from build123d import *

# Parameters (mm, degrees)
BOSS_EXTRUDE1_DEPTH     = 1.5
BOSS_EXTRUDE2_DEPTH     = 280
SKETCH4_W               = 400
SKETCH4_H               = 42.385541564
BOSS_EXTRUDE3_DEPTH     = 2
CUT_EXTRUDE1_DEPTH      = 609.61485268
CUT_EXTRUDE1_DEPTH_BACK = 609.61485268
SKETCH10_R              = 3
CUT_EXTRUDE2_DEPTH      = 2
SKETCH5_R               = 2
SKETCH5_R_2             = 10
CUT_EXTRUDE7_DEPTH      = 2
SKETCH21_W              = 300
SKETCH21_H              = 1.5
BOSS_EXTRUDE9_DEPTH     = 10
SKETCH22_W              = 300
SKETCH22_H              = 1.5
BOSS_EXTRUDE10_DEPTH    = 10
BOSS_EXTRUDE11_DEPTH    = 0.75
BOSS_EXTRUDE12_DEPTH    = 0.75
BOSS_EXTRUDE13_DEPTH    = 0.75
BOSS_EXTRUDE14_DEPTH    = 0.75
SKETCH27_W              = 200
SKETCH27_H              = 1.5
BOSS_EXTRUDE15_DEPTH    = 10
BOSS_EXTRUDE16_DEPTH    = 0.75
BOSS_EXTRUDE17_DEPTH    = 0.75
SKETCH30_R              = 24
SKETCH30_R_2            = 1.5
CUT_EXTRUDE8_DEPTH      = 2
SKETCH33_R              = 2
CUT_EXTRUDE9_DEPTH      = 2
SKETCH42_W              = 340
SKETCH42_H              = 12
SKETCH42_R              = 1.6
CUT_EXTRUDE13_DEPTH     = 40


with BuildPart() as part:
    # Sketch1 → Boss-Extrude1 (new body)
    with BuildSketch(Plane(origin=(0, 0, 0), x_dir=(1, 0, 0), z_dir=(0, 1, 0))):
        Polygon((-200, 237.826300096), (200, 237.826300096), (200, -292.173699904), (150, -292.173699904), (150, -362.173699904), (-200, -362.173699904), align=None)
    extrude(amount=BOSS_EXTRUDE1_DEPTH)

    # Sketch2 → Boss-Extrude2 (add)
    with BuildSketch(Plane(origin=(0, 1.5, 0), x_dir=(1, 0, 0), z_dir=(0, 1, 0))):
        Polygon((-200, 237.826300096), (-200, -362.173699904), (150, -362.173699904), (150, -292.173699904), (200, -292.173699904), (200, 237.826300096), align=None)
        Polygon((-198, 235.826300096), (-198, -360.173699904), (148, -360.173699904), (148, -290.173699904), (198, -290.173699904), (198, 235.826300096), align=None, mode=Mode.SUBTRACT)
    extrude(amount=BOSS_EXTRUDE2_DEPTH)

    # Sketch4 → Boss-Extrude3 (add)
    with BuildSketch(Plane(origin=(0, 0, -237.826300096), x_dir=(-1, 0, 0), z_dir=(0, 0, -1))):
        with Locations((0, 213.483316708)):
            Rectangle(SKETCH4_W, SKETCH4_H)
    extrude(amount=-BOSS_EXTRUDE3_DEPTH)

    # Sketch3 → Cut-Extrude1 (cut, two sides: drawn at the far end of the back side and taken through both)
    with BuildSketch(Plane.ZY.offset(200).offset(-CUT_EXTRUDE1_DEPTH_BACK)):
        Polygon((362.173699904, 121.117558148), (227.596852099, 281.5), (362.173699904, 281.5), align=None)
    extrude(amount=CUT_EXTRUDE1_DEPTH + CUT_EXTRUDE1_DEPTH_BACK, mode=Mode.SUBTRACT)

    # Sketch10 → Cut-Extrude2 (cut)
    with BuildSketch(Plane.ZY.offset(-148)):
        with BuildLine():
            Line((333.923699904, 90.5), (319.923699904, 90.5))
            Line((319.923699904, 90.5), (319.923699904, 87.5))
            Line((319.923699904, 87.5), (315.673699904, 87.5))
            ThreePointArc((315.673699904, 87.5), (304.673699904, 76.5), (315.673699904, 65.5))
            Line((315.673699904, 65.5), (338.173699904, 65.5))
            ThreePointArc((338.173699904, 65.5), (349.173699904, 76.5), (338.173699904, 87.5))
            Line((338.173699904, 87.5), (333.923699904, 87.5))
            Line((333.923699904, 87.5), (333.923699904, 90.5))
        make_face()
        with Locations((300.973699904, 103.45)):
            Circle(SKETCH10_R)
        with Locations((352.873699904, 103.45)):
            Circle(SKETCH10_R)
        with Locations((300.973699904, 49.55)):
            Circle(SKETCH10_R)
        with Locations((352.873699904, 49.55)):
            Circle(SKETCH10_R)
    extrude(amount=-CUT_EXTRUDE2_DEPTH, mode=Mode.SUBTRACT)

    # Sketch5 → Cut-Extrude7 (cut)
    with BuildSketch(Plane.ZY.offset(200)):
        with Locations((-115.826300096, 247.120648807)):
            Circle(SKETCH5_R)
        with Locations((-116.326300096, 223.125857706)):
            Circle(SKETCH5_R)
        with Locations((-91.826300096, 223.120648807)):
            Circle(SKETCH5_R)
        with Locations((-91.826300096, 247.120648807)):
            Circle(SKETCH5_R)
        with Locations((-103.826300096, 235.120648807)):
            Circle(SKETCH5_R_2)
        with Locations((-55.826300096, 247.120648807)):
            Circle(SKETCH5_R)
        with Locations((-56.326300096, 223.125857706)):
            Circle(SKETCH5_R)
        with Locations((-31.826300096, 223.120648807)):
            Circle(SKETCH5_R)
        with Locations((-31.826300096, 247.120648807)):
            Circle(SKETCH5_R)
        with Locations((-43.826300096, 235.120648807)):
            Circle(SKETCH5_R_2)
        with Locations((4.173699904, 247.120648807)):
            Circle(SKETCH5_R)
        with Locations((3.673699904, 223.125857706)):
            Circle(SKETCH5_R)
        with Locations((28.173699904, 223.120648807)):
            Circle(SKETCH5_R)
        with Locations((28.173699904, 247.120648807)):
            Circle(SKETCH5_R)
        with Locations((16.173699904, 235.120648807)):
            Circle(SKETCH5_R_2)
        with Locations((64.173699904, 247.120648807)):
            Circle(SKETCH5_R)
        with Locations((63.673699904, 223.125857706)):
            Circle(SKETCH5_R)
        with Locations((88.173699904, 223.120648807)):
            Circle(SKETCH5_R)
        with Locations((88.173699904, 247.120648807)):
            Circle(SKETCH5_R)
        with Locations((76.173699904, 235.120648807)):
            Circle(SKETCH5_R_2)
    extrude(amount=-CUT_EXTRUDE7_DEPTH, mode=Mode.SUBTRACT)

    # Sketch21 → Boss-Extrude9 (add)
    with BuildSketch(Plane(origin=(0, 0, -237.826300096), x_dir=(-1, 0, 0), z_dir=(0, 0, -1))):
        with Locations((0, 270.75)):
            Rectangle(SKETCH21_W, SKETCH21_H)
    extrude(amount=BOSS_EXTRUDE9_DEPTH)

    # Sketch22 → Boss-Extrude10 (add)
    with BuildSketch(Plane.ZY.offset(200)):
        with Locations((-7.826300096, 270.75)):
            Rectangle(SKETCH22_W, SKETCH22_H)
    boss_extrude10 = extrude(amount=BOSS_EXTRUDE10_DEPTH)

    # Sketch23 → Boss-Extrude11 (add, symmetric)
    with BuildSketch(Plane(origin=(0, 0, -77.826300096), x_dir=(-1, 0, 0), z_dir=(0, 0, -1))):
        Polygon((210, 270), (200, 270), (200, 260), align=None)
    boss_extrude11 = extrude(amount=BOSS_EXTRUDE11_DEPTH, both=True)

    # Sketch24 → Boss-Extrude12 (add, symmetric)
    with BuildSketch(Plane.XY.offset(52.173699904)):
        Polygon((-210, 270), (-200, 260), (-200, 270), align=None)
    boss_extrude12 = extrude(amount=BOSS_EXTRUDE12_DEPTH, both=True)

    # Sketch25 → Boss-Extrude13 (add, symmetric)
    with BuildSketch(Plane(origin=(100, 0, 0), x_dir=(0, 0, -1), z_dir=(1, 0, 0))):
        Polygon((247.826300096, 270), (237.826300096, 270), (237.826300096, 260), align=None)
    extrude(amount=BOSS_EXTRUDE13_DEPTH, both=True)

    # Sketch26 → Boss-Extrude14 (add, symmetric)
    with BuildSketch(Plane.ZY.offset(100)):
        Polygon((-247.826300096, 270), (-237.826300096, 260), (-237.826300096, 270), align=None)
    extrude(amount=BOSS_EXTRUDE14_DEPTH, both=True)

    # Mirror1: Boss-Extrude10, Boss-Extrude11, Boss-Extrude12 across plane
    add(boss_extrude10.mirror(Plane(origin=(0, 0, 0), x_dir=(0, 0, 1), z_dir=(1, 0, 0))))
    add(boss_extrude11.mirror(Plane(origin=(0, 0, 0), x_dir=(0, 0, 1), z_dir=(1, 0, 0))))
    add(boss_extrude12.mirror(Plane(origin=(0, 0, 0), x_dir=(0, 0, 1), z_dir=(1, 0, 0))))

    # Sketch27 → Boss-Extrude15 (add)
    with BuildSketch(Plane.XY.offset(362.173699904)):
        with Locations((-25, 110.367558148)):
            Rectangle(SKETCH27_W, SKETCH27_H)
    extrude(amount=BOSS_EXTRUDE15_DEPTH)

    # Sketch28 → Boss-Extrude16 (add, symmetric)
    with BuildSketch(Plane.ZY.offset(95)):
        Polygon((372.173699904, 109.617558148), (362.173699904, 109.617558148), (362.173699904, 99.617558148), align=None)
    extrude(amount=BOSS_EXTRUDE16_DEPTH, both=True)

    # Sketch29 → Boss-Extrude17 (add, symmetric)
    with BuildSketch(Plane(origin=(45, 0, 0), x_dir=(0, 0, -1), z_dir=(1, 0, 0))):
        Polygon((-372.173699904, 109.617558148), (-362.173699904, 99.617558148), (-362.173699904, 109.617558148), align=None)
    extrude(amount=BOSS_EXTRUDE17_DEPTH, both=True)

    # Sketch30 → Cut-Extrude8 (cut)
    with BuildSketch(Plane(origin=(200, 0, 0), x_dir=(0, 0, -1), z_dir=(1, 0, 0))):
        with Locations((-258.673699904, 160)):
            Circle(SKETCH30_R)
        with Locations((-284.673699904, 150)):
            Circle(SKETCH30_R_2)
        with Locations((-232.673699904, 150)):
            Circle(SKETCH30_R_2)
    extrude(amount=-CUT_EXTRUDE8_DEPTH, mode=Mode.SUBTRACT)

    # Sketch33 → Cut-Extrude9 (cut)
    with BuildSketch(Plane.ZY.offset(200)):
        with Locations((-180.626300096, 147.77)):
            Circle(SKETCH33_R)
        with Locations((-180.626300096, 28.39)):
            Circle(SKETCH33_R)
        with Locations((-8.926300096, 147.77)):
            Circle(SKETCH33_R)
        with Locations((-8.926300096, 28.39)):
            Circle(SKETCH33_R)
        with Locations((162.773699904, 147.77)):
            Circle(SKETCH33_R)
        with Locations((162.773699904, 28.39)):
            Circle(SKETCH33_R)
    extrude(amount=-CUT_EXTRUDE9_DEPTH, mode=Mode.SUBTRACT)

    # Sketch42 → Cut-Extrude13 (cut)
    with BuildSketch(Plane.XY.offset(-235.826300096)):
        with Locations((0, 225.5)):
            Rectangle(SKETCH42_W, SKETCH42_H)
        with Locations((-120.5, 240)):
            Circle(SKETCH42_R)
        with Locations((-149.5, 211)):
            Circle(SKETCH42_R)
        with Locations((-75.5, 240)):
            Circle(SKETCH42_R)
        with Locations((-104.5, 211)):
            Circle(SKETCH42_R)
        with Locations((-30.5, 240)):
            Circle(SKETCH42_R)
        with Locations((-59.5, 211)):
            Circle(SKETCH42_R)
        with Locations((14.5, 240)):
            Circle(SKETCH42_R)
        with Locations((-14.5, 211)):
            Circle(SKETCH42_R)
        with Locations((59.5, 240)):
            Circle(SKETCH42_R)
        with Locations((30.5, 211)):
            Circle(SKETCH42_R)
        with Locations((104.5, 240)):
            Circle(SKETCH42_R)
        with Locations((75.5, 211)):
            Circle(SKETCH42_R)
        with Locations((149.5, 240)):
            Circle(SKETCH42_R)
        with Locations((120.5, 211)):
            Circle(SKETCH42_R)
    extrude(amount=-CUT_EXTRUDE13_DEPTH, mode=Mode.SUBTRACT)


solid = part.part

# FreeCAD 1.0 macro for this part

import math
import FreeCAD as App
import Part
import Sketcher

V = App.Vector
Q = App.Units.Quantity


def add_polygon(sketch, points):
    """Adds a closed chain of lines whose ends are joined by coincident constraints."""
    first, n = sketch.GeometryCount, len(points)
    for a, b in zip(points, points[1:] + points[:1]):
        sketch.addGeometry(Part.LineSegment(App.Vector(*a, 0), App.Vector(*b, 0)), False)
    for i in range(n):
        sketch.addConstraint(Sketcher.Constraint("Coincident", first + i, 2, first + (i + 1) % n, 1))

doc = App.newDocument("Part")
params = doc.addObject("Spreadsheet::Sheet", "Params")
for row, (alias, value) in enumerate([
    ("sketch1_width", "400 mm"),
    ("sketch1_width2", "350 mm"),
    ("sketch1_height", "600 mm"),
    ("sketch1_height2", "70 mm"),
    ("pad1_length", "1.5 mm"),
    ("sketch2_width", "350 mm"),
    ("sketch2_width2", "50 mm"),
    ("sketch2_width3", "396 mm"),
    ("sketch2_height", "600 mm"),
    ("sketch2_height2", "70 mm"),
    ("pad2_length", "280 mm"),
    ("sketch3_width", "400 mm"),
    ("pad3_length", "2 mm"),
    ("sketch5_diameter", "6 mm"),
    ("sketch5_radius", "11 mm"),
    ("sketch5_width", "3 mm"),
    ("sketch5_height", "14 mm"),
    ("sketch5_height2", "22.5 mm"),
    ("pocket2_length", "2 mm"),
    ("sketch6_diameter", "4 mm"),
    ("sketch6_diameter2", "20 mm"),
    ("pocket3_length", "2 mm"),
    ("sketch7_width", "300 mm"),
    ("sketch7_height", "1.5 mm"),
    ("pad4_length", "10 mm"),
    ("sketch8_height", "300 mm"),
    ("sketch8_width", "1.5 mm"),
    ("pad5_length", "10 mm"),
    ("sketch9_width", "10 mm"),
    ("pad6_length", "1.5 mm"),
    ("sketch10_width", "10 mm"),
    ("pad7_length", "1.5 mm"),
    ("sketch11_width", "10 mm"),
    ("pad8_length", "1.5 mm"),
    ("sketch12_width", "10 mm"),
    ("pad9_length", "1.5 mm"),
    ("sketch13_width", "200 mm"),
    ("sketch13_height", "1.5 mm"),
    ("pad10_length", "10 mm"),
    ("sketch14_width", "10 mm"),
    ("pad11_length", "1.5 mm"),
    ("sketch15_width", "10 mm"),
    ("pad12_length", "1.5 mm"),
    ("sketch16_diameter", "48 mm"),
    ("sketch16_diameter2", "3 mm"),
    ("pocket4_length", "2 mm"),
    ("sketch17_diameter", "4 mm"),
    ("pocket5_length", "2 mm"),
    ("sketch18_diameter", "3.2 mm"),
    ("sketch18_width", "340 mm"),
    ("sketch18_height", "12 mm"),
    ("pocket6_length", "40 mm"),
], start=1):
    params.set(f"A{row}", alias)
    params.set(f"B{row}", "=" + value)
    params.setAlias(f"B{row}", alias)

body = doc.addObject("PartDesign::Body", "Body")

sketch1 = doc.addObject("Sketcher::SketchObject", "Sketch")
body.addObject(sketch1)
sketch1.AttachmentSupport = (doc.XZ_Plane, [""])
sketch1.MapMode = "FlatFace"
add_polygon(sketch1, [(200, -238), (-200, -238), (-200, 362), (150, 362), (150, 292), (200, 292)])
sketch1.addConstraint([
    Sketcher.Constraint("Horizontal", 0),
    Sketcher.Constraint("Vertical", 1),
    Sketcher.Constraint("Horizontal", 2),
    Sketcher.Constraint("Vertical", 3),
    Sketcher.Constraint("Horizontal", 4),
    Sketcher.Constraint("Vertical", 5),
    Sketcher.Constraint("DistanceX", 0, 2, 0, 1, Q("400 mm")),
    Sketcher.Constraint("DistanceX", 2, 1, 2, 2, Q("350 mm")),
    Sketcher.Constraint("DistanceY", 1, 1, 1, 2, Q("600 mm")),
    Sketcher.Constraint("DistanceY", 3, 2, 3, 1, Q("70 mm")),
    Sketcher.Constraint("DistanceX", 0, 2, -1, 1, Q("200 mm")),
    Sketcher.Constraint("DistanceY", 0, 2, -1, 1, Q("237.8263 mm")),
])
sketch1.setExpression("Constraints[12]", "Params.sketch1_width")
sketch1.setExpression("Constraints[13]", "Params.sketch1_width2")
sketch1.setExpression("Constraints[14]", "Params.sketch1_height")
sketch1.setExpression("Constraints[15]", "Params.sketch1_height2")
pad1 = doc.addObject("PartDesign::Pad", "Pad")
body.addObject(pad1)
pad1.Profile = sketch1
pad1.setExpression("Length", "Params.pad1_length")
pad1.Reversed = True

sketch2 = doc.addObject("Sketcher::SketchObject", "Sketch001")
body.addObject(sketch2)
sketch2.AttachmentSupport = (doc.XZ_Plane, [""])
sketch2.MapMode = "FlatFace"
sketch2.AttachmentOffset = App.Placement(V(0, 0, -1.5), App.Rotation())
add_polygon(sketch2, [(-200, -238), (-200, 362), (150, 362), (150, 292), (200, 292), (200, -238)])
add_polygon(sketch2, [(-198, 360), (-198, -236), (198, -236), (198, 290), (148, 290), (148, 360)])
sketch2.addConstraint([
    Sketcher.Constraint("Vertical", 0),
    Sketcher.Constraint("Horizontal", 1),
    Sketcher.Constraint("Vertical", 2),
    Sketcher.Constraint("Horizontal", 3),
    Sketcher.Constraint("Vertical", 4),
    Sketcher.Constraint("Horizontal", 5),
    Sketcher.Constraint("Vertical", 6),
    Sketcher.Constraint("Horizontal", 7),
    Sketcher.Constraint("Vertical", 8),
    Sketcher.Constraint("Horizontal", 9),
    Sketcher.Constraint("Vertical", 10),
    Sketcher.Constraint("Horizontal", 11),
    Sketcher.Constraint("Equal", 3, 9),
    Sketcher.Constraint("Equal", 2, 10),
    Sketcher.Constraint("DistanceX", 1, 1, 1, 2, Q("350 mm")),
    Sketcher.Constraint("DistanceX", 3, 1, 3, 2, Q("50 mm")),
    Sketcher.Constraint("DistanceX", 7, 1, 7, 2, Q("396 mm")),
    Sketcher.Constraint("DistanceY", 0, 1, 0, 2, Q("600 mm")),
    Sketcher.Constraint("DistanceY", 2, 2, 2, 1, Q("70 mm")),
    Sketcher.Constraint("DistanceY", 6, 2, 6, 1, Q("596 mm")),
    Sketcher.Constraint("DistanceX", 0, 2, -1, 1, Q("200 mm")),
    Sketcher.Constraint("DistanceX", 6, 2, -1, 1, Q("198 mm")),
    Sketcher.Constraint("DistanceY", 5, 2, 6, 2, Q("2 mm")),
    Sketcher.Constraint("DistanceY", -1, 1, 0, 2, Q("362.1737 mm")),
])
sketch2.setExpression("Constraints[26]", "Params.sketch2_width")
sketch2.setExpression("Constraints[27]", "Params.sketch2_width2")
sketch2.setExpression("Constraints[28]", "Params.sketch2_width3")
sketch2.setExpression("Constraints[29]", "Params.sketch2_height")
sketch2.setExpression("Constraints[30]", "Params.sketch2_height2")
pad2 = doc.addObject("PartDesign::Pad", "Pad001")
body.addObject(pad2)
pad2.Profile = sketch2
pad2.setExpression("Length", "Params.pad2_length")
pad2.Reversed = True

sketch3 = doc.addObject("Sketcher::SketchObject", "Sketch002")
body.addObject(sketch3)
sketch3.AttachmentSupport = (doc.XY_Plane, [""])
sketch3.MapMode = "FlatFace"
sketch3.AttachmentOffset = App.Placement(V(0, 0, -237.8263), App.Rotation())
add_polygon(sketch3, [(200, 235), (200, 192), (-200, 192), (-200, 235)])
sketch3.addConstraint([
    Sketcher.Constraint("Vertical", 0),
    Sketcher.Constraint("Horizontal", 1),
    Sketcher.Constraint("Vertical", 2),
    Sketcher.Constraint("Horizontal", 3),
    Sketcher.Constraint("DistanceX", 1, 2, 1, 1, Q("400 mm")),
    Sketcher.Constraint("DistanceX", -1, 1, 0, 2, Q("200 mm")),
    Sketcher.Constraint("DistanceY", 0, 2, 0, 1, Q("42.385542 mm")),
    Sketcher.Constraint("DistanceY", -1, 1, 0, 2, Q("192.290546 mm")),
])
sketch3.setExpression("Constraints[8]", "Params.sketch3_width")
pad3 = doc.addObject("PartDesign::Pad", "Pad002")
body.addObject(pad3)
pad3.Profile = sketch3
pad3.setExpression("Length", "Params.pad3_length")

sketch4 = doc.addObject("Sketcher::SketchObject", "Sketch003")
body.addObject(sketch4)
sketch4.AttachmentSupport = (doc.YZ_Plane, [""])
sketch4.MapMode = "FlatFace"
sketch4.AttachmentOffset = App.Placement(V(0, 0, -200), App.Rotation())
add_polygon(sketch4, [(282, 228), (121, 362), (282, 362)])
sketch4.addConstraint([
    Sketcher.Constraint("Horizontal", 1),
    Sketcher.Constraint("Vertical", 2),
    Sketcher.Constraint("Angle", 0, Q("140 deg")),
    Sketcher.Constraint("DistanceX", -1, 1, 1, 2, Q("281.5 mm")),
    Sketcher.Constraint("DistanceX", 1, 1, 1, 2, Q("160.382442 mm")),
    Sketcher.Constraint("DistanceY", -1, 1, 0, 2, Q("362.1737 mm")),
])
pocket1 = doc.addObject("PartDesign::Pocket", "Pocket")
body.addObject(pocket1)
pocket1.Profile = sketch4
pocket1.Type = "ThroughAll"
pocket1.Midplane = True

sketch5 = doc.addObject("Sketcher::SketchObject", "Sketch004")
body.addObject(sketch5)
sketch5.AttachmentSupport = (doc.YZ_Plane, [""])
sketch5.MapMode = "FlatFace"
sketch5.AttachmentOffset = App.Placement(V(0, 0, 148), App.Rotation())
sketch5.addGeometry([
    Part.LineSegment(V(90.5, 333.9, 0), V(90.5, 319.9, 0)),
    Part.LineSegment(V(90.5, 319.9, 0), V(87.5, 319.9, 0)),
    Part.LineSegment(V(87.5, 319.9, 0), V(87.5, 315.7, 0)),
    Part.ArcOfCircle(Part.Circle(V(76.5, 315.7, 0), V(0, 0, 1), 11), math.radians(180), math.radians(360)),
    Part.LineSegment(V(65.5, 315.7, 0), V(65.5, 338.2, 0)),
    Part.ArcOfCircle(Part.Circle(V(76.5, 338.2, 0), V(0, 0, 1), 11), math.radians(0), math.radians(180)),
    Part.LineSegment(V(87.5, 338.2, 0), V(87.5, 333.9, 0)),
    Part.LineSegment(V(87.5, 333.9, 0), V(90.5, 333.9, 0)),
    Part.Circle(V(103.5, 301, 0), V(0, 0, 1), 3),
    Part.Circle(V(103.5, 352.9, 0), V(0, 0, 1), 3),
    Part.Circle(V(49.5, 301, 0), V(0, 0, 1), 3),
    Part.Circle(V(49.5, 352.9, 0), V(0, 0, 1), 3),
], False)
sketch5.addConstraint([
    Sketcher.Constraint("Coincident", 0, 2, 1, 1),
    Sketcher.Constraint("Coincident", 1, 2, 2, 1),
    Sketcher.Constraint("Tangent", 2, 2, 3, 2),
    Sketcher.Constraint("Tangent", 3, 1, 4, 1),
    Sketcher.Constraint("Tangent", 4, 2, 5, 2),
    Sketcher.Constraint("Tangent", 5, 1, 6, 1),
    Sketcher.Constraint("Coincident", 6, 2, 7, 1),
    Sketcher.Constraint("Coincident", 7, 2, 0, 1),
    Sketcher.Constraint("Vertical", 0),
    Sketcher.Constraint("Horizontal", 1),
    Sketcher.Constraint("Vertical", 2),
    Sketcher.Constraint("Vertical", 4),
    Sketcher.Constraint("Vertical", 6),
    Sketcher.Constraint("Horizontal", 7),
    Sketcher.Constraint("Equal", 3, 5),
    Sketcher.Constraint("Equal", 8, 9),
    Sketcher.Constraint("Equal", 9, 10),
    Sketcher.Constraint("Equal", 10, 11),
    Sketcher.Constraint("Horizontal", 8, 3, 10, 3),
    Sketcher.Constraint("Horizontal", 9, 3, 11, 3),
    Sketcher.Constraint("Vertical", 8, 3, 9, 3),
    Sketcher.Constraint("Vertical", 10, 3, 11, 3),
    Sketcher.Constraint("Equal", 2, 6),
    Sketcher.Constraint("Diameter", 8, Q("6 mm")),
    Sketcher.Constraint("Radius", 3, Q("11 mm")),
    Sketcher.Constraint("DistanceX", 1, 2, 1, 1, Q("3 mm")),
    Sketcher.Constraint("DistanceY", 0, 2, 0, 1, Q("14 mm")),
    Sketcher.Constraint("DistanceY", 4, 1, 4, 2, Q("22.5 mm")),
    Sketcher.Constraint("DistanceX", -1, 1, 3, 3, Q("76.5 mm")),
    Sketcher.Constraint("DistanceY", 8, 3, 3, 3, Q("14.7 mm")),
    Sketcher.Constraint("DistanceY", 5, 3, 9, 3, Q("14.7 mm")),
    Sketcher.Constraint("DistanceX", 10, 3, 8, 3, Q("53.9 mm")),
    Sketcher.Constraint("DistanceX", -1, 1, 8, 3, Q("103.45 mm")),
    Sketcher.Constraint("DistanceY", -1, 1, 3, 3, Q("315.6737 mm")),
])
sketch5.setExpression("Constraints[23]", "Params.sketch5_diameter")
sketch5.setExpression("Constraints[24]", "Params.sketch5_radius")
sketch5.setExpression("Constraints[25]", "Params.sketch5_width")
sketch5.setExpression("Constraints[26]", "Params.sketch5_height")
sketch5.setExpression("Constraints[27]", "Params.sketch5_height2")
pocket2 = doc.addObject("PartDesign::Pocket", "Pocket001")
body.addObject(pocket2)
pocket2.Profile = sketch5
pocket2.setExpression("Length", "Params.pocket2_length")
pocket2.Reversed = True

sketch6 = doc.addObject("Sketcher::SketchObject", "Sketch005")
body.addObject(sketch6)
sketch6.AttachmentSupport = (doc.YZ_Plane, [""])
sketch6.MapMode = "FlatFace"
sketch6.AttachmentOffset = App.Placement(V(0, 0, -200), App.Rotation())
sketch6.addGeometry([
    Part.Circle(V(247.1, -115.8, 0), V(0, 0, 1), 2),
    Part.Circle(V(223.1, -116.3, 0), V(0, 0, 1), 2),
    Part.Circle(V(223.1, -91.8, 0), V(0, 0, 1), 2),
    Part.Circle(V(247.1, -91.8, 0), V(0, 0, 1), 2),
    Part.Circle(V(235.1, -103.8, 0), V(0, 0, 1), 10),
    Part.Circle(V(247.1, -55.8, 0), V(0, 0, 1), 2),
    Part.Circle(V(223.1, -56.3, 0), V(0, 0, 1), 2),
    Part.Circle(V(223.1, -31.8, 0), V(0, 0, 1), 2),
    Part.Circle(V(247.1, -31.8, 0), V(0, 0, 1), 2),
    Part.Circle(V(235.1, -43.8, 0), V(0, 0, 1), 10),
    Part.Circle(V(247.1, 4.2, 0), V(0, 0, 1), 2),
    Part.Circle(V(223.1, 3.7, 0), V(0, 0, 1), 2),
    Part.Circle(V(223.1, 28.2, 0), V(0, 0, 1), 2),
    Part.Circle(V(247.1, 28.2, 0), V(0, 0, 1), 2),
    Part.Circle(V(235.1, 16.2, 0), V(0, 0, 1), 10),
    Part.Circle(V(247.1, 64.2, 0), V(0, 0, 1), 2),
    Part.Circle(V(223.1, 63.7, 0), V(0, 0, 1), 2),
    Part.Circle(V(223.1, 88.2, 0), V(0, 0, 1), 2),
    Part.Circle(V(247.1, 88.2, 0), V(0, 0, 1), 2),
    Part.Circle(V(235.1, 76.2, 0), V(0, 0, 1), 10),
], False)
sketch6.addConstraint([
    Sketcher.Constraint("Equal", 0, 1),
    Sketcher.Constraint("Equal", 1, 2),
    Sketcher.Constraint("Equal", 2, 3),
    Sketcher.Constraint("Equal", 3, 5),
    Sketcher.Constraint("Equal", 5, 6),
    Sketcher.Constraint("Equal", 6, 7),
    Sketcher.Constraint("Equal", 7, 8),
    Sketcher.Constraint("Equal", 4, 9),
    Sketcher.Constraint("Equal", 8, 10),
    Sketcher.Constraint("Equal", 10, 11),
    Sketcher.Constraint("Equal", 11, 12),
    Sketcher.Constraint("Equal", 12, 13),
    Sketcher.Constraint("Equal", 9, 14),
    Sketcher.Constraint("Equal", 13, 15),
    Sketcher.Constraint("Equal", 15, 16),
    Sketcher.Constraint("Equal", 16, 17),
    Sketcher.Constraint("Equal", 17, 18),
    Sketcher.Constraint("Equal", 14, 19),
    Sketcher.Constraint("Horizontal", 2, 3, 3, 3),
    Sketcher.Constraint("Horizontal", 7, 3, 8, 3),
    Sketcher.Constraint("Horizontal", 12, 3, 13, 3),
    Sketcher.Constraint("Horizontal", 17, 3, 18, 3),
    Sketcher.Constraint("Vertical", 0, 3, 3, 3),
    Sketcher.Constraint("Vertical", 3, 3, 5, 3),
    Sketcher.Constraint("Vertical", 1, 3, 6, 3),
    Sketcher.Constraint("Vertical", 2, 3, 7, 3),
    Sketcher.Constraint("Vertical", 5, 3, 8, 3),
    Sketcher.Constraint("Vertical", 4, 3, 9, 3),
    Sketcher.Constraint("Vertical", 8, 3, 10, 3),
    Sketcher.Constraint("Vertical", 6, 3, 11, 3),
    Sketcher.Constraint("Vertical", 7, 3, 12, 3),
    Sketcher.Constraint("Vertical", 10, 3, 13, 3),
    Sketcher.Constraint("Vertical", 9, 3, 14, 3),
    Sketcher.Constraint("Vertical", 13, 3, 15, 3),
    Sketcher.Constraint("Vertical", 11, 3, 16, 3),
    Sketcher.Constraint("Vertical", 12, 3, 17, 3),
    Sketcher.Constraint("Vertical", 15, 3, 18, 3),
    Sketcher.Constraint("Vertical", 14, 3, 19, 3),
    Sketcher.Constraint("Diameter", 0, Q("4 mm")),
    Sketcher.Constraint("Diameter", 4, Q("20 mm")),
    Sketcher.Constraint("DistanceX", 2, 3, 0, 3, Q("24 mm")),
    Sketcher.Constraint("DistanceY", 0, 3, 2, 3, Q("24 mm")),
    Sketcher.Constraint("DistanceX", 4, 3, 0, 3, Q("12 mm")),
    Sketcher.Constraint("DistanceY", 0, 3, 4, 3, Q("12 mm")),
    Sketcher.Constraint("DistanceY", 3, 3, 5, 3, Q("36 mm")),
    Sketcher.Constraint("DistanceY", 1, 3, 6, 3, Q("60 mm")),
    Sketcher.Constraint("DistanceY", 5, 3, 7, 3, Q("24 mm")),
    Sketcher.Constraint("DistanceY", 5, 3, 9, 3, Q("12 mm")),
    Sketcher.Constraint("DistanceY", 8, 3, 10, 3, Q("36 mm")),
    Sketcher.Constraint("DistanceY", 6, 3, 11, 3, Q("60 mm")),
    Sketcher.Constraint("DistanceY", 10, 3, 12, 3, Q("24 mm")),
    Sketcher.Constraint("DistanceY", 10, 3, 14, 3, Q("12 mm")),
    Sketcher.Constraint("DistanceY", 13, 3, 15, 3, Q("36 mm")),
    Sketcher.Constraint("DistanceY", 11, 3, 16, 3, Q("60 mm")),
    Sketcher.Constraint("DistanceY", 15, 3, 17, 3, Q("24 mm")),
    Sketcher.Constraint("DistanceY", 15, 3, 19, 3, Q("12 mm")),
    Sketcher.Constraint("DistanceY", 1, 3, 0, 3, Q("0.5 mm")),
    Sketcher.Constraint("DistanceY", 0, 3, -1, 1, Q("115.8263 mm")),
    Sketcher.Constraint("DistanceX", -1, 1, 0, 3, Q("247.120649 mm")),
    Sketcher.Constraint("DistanceX", 1, 3, 0, 3, Q("23.994791 mm")),
])
sketch6.setExpression("Constraints[38]", "Params.sketch6_diameter")
sketch6.setExpression("Constraints[39]", "Params.sketch6_diameter2")
pocket3 = doc.addObject("PartDesign::Pocket", "Pocket002")
body.addObject(pocket3)
pocket3.Profile = sketch6
pocket3.setExpression("Length", "Params.pocket3_length")
pocket3.Reversed = True

sketch7 = doc.addObject("Sketcher::SketchObject", "Sketch006")
body.addObject(sketch7)
sketch7.AttachmentSupport = (doc.XY_Plane, [""])
sketch7.MapMode = "FlatFace"
sketch7.AttachmentOffset = App.Placement(V(0, 0, -237.8263), App.Rotation())
add_polygon(sketch7, [(150, 271.5), (150, 270), (-150, 270), (-150, 271.5)])
sketch7.addConstraint([
    Sketcher.Constraint("Vertical", 0),
    Sketcher.Constraint("Horizontal", 1),
    Sketcher.Constraint("Vertical", 2),
    Sketcher.Constraint("Horizontal", 3),
    Sketcher.Constraint("DistanceX", 1, 2, 1, 1, Q("300 mm")),
    Sketcher.Constraint("DistanceY", 0, 2, 0, 1, Q("1.5 mm")),
    Sketcher.Constraint("DistanceX", -1, 1, 0, 2, Q("150 mm")),
    Sketcher.Constraint("DistanceY", -1, 1, 0, 2, Q("270 mm")),
])
sketch7.setExpression("Constraints[8]", "Params.sketch7_width")
sketch7.setExpression("Constraints[9]", "Params.sketch7_height")
pad4 = doc.addObject("PartDesign::Pad", "Pad003")
body.addObject(pad4)
pad4.Profile = sketch7
pad4.setExpression("Length", "Params.pad4_length")
pad4.Reversed = True

sketch8 = doc.addObject("Sketcher::SketchObject", "Sketch007")
body.addObject(sketch8)
sketch8.AttachmentSupport = (doc.YZ_Plane, [""])
sketch8.MapMode = "FlatFace"
sketch8.AttachmentOffset = App.Placement(V(0, 0, -200), App.Rotation())
add_polygon(sketch8, [(271.5, -157.8), (270, -157.8), (270, 142.2), (271.5, 142.2)])
sketch8.addConstraint([
    Sketcher.Constraint("Horizontal", 0),
    Sketcher.Constraint("Vertical", 1),
    Sketcher.Constraint("Horizontal", 2),
    Sketcher.Constraint("Vertical", 3),
    Sketcher.Constraint("DistanceY", 1, 1, 1, 2, Q("300 mm")),
    Sketcher.Constraint("DistanceX", 0, 2, 0, 1, Q("1.5 mm")),
    Sketcher.Constraint("DistanceX", -1, 1, 0, 2, Q("270 mm")),
    Sketcher.Constraint("DistanceY", 0, 2, -1, 1, Q("157.8263 mm")),
])
sketch8.setExpression("Constraints[8]", "Params.sketch8_height")
sketch8.setExpression("Constraints[9]", "Params.sketch8_width")
pad5 = doc.addObject("PartDesign::Pad", "Pad004")
body.addObject(pad5)
pad5.Profile = sketch8
pad5.setExpression("Length", "Params.pad5_length")
pad5.Reversed = True

sketch9 = doc.addObject("Sketcher::SketchObject", "Sketch008")
body.addObject(sketch9)
sketch9.AttachmentSupport = (doc.XY_Plane, [""])
sketch9.MapMode = "FlatFace"
sketch9.AttachmentOffset = App.Placement(V(0, 0, -77.8263), App.Rotation())
add_polygon(sketch9, [(-210, 270), (-200, 270), (-200, 260)])
sketch9.addConstraint([
    Sketcher.Constraint("Horizontal", 0),
    Sketcher.Constraint("Vertical", 1),
    Sketcher.Constraint("Equal", 0, 1),
    Sketcher.Constraint("DistanceX", 0, 1, 0, 2, Q("10 mm")),
    Sketcher.Constraint("DistanceX", 0, 2, -1, 1, Q("200 mm")),
    Sketcher.Constraint("DistanceY", -1, 1, 0, 2, Q("270 mm")),
])
sketch9.setExpression("Constraints[6]", "Params.sketch9_width")
pad6 = doc.addObject("PartDesign::Pad", "Pad005")
body.addObject(pad6)
pad6.Profile = sketch9
pad6.setExpression("Length", "Params.pad6_length")
pad6.Midplane = True

sketch10 = doc.addObject("Sketcher::SketchObject", "Sketch009")
body.addObject(sketch10)
sketch10.AttachmentSupport = (doc.XY_Plane, [""])
sketch10.MapMode = "FlatFace"
sketch10.AttachmentOffset = App.Placement(V(0, 0, 52.1737), App.Rotation())
add_polygon(sketch10, [(-210, 270), (-200, 260), (-200, 270)])
sketch10.addConstraint([
    Sketcher.Constraint("Vertical", 1),
    Sketcher.Constraint("Horizontal", 2),
    Sketcher.Constraint("Equal", 2, 1),
    Sketcher.Constraint("DistanceX", 2, 2, 2, 1, Q("10 mm")),
    Sketcher.Constraint("DistanceX", 0, 2, -1, 1, Q("200 mm")),
    Sketcher.Constraint("DistanceY", -1, 1, 0, 2, Q("260 mm")),
])
sketch10.setExpression("Constraints[6]", "Params.sketch10_width")
pad7 = doc.addObject("PartDesign::Pad", "Pad006")
body.addObject(pad7)
pad7.Profile = sketch10
pad7.setExpression("Length", "Params.pad7_length")
pad7.Midplane = True

sketch11 = doc.addObject("Sketcher::SketchObject", "Sketch010")
body.addObject(sketch11)
sketch11.AttachmentSupport = (doc.YZ_Plane, [""])
sketch11.MapMode = "FlatFace"
sketch11.AttachmentOffset = App.Placement(V(0, 0, 100), App.Rotation())
add_polygon(sketch11, [(270, -248), (270, -238), (260, -238)])
sketch11.addConstraint([
    Sketcher.Constraint("Vertical", 0),
    Sketcher.Constraint("Horizontal", 1),
    Sketcher.Constraint("Equal", 1, 0),
    Sketcher.Constraint("DistanceX", 1, 2, 1, 1, Q("10 mm")),
    Sketcher.Constraint("DistanceX", -1, 1, 0, 2, Q("270 mm")),
    Sketcher.Constraint("DistanceY", 0, 2, -1, 1, Q("237.8263 mm")),
])
sketch11.setExpression("Constraints[6]", "Params.sketch11_width")
pad8 = doc.addObject("PartDesign::Pad", "Pad007")
body.addObject(pad8)
pad8.Profile = sketch11
pad8.setExpression("Length", "Params.pad8_length")
pad8.Midplane = True

sketch12 = doc.addObject("Sketcher::SketchObject", "Sketch011")
body.addObject(sketch12)
sketch12.AttachmentSupport = (doc.YZ_Plane, [""])
sketch12.MapMode = "FlatFace"
sketch12.AttachmentOffset = App.Placement(V(0, 0, -100), App.Rotation())
add_polygon(sketch12, [(270, -248), (260, -238), (270, -238)])
sketch12.addConstraint([
    Sketcher.Constraint("Horizontal", 1),
    Sketcher.Constraint("Vertical", 2),
    Sketcher.Constraint("Equal", 1, 2),
    Sketcher.Constraint("DistanceX", 1, 1, 1, 2, Q("10 mm")),
    Sketcher.Constraint("DistanceX", -1, 1, 0, 2, Q("260 mm")),
    Sketcher.Constraint("DistanceY", 0, 2, -1, 1, Q("237.8263 mm")),
])
sketch12.setExpression("Constraints[6]", "Params.sketch12_width")
pad9 = doc.addObject("PartDesign::Pad", "Pad008")
body.addObject(pad9)
pad9.Profile = sketch12
pad9.setExpression("Length", "Params.pad9_length")
pad9.Midplane = True
doc.recompute()

mirrored = doc.addObject("PartDesign::Mirrored", "Mirrored")
body.addObject(mirrored)
mirrored.Originals = [pad5, pad6, pad7]
mirrored.MirrorPlane = (doc.YZ_Plane, [""])
body.Tip = mirrored

sketch13 = doc.addObject("Sketcher::SketchObject", "Sketch012")
body.addObject(sketch13)
sketch13.AttachmentSupport = (doc.XY_Plane, [""])
sketch13.MapMode = "FlatFace"
sketch13.AttachmentOffset = App.Placement(V(0, 0, 362.1737), App.Rotation())
add_polygon(sketch13, [(-125, 111.1), (-125, 109.6), (75, 109.6), (75, 111.1)])
sketch13.addConstraint([
    Sketcher.Constraint("Vertical", 0),
    Sketcher.Constraint("Horizontal", 1),
    Sketcher.Constraint("Vertical", 2),
    Sketcher.Constraint("Horizontal", 3),
    Sketcher.Constraint("DistanceX", 1, 1, 1, 2, Q("200 mm")),
    Sketcher.Constraint("DistanceY", 0, 2, 0, 1, Q("1.5 mm")),
    Sketcher.Constraint("DistanceX", 0, 2, -1, 1, Q("125 mm")),
    Sketcher.Constraint("DistanceY", -1, 1, 0, 2, Q("109.617558 mm")),
])
sketch13.setExpression("Constraints[8]", "Params.sketch13_width")
sketch13.setExpression("Constraints[9]", "Params.sketch13_height")
pad10 = doc.addObject("PartDesign::Pad", "Pad009")
body.addObject(pad10)
pad10.Profile = sketch13
pad10.setExpression("Length", "Params.pad10_length")

sketch14 = doc.addObject("Sketcher::SketchObject", "Sketch013")
body.addObject(sketch14)
sketch14.AttachmentSupport = (doc.YZ_Plane, [""])
sketch14.MapMode = "FlatFace"
sketch14.AttachmentOffset = App.Placement(V(0, 0, -95), App.Rotation())
add_polygon(sketch14, [(110, 372), (110, 362), (100, 362)])
sketch14.addConstraint([
    Sketcher.Constraint("Vertical", 0),
    Sketcher.Constraint("Horizontal", 1),
    Sketcher.Constraint("Equal", 1, 0),
    Sketcher.Constraint("DistanceX", 1, 2, 1, 1, Q("10 mm")),
    Sketcher.Constraint("DistanceY", -1, 1, 0, 2, Q("362.1737 mm")),
    Sketcher.Constraint("DistanceX", -1, 1, 0, 2, Q("109.617558 mm")),
])
sketch14.setExpression("Constraints[6]", "Params.sketch14_width")
pad11 = doc.addObject("PartDesign::Pad", "Pad010")
body.addObject(pad11)
pad11.Profile = sketch14
pad11.setExpression("Length", "Params.pad11_length")
pad11.Midplane = True

sketch15 = doc.addObject("Sketcher::SketchObject", "Sketch014")
body.addObject(sketch15)
sketch15.AttachmentSupport = (doc.YZ_Plane, [""])
sketch15.MapMode = "FlatFace"
sketch15.AttachmentOffset = App.Placement(V(0, 0, 45), App.Rotation())
add_polygon(sketch15, [(110, 372), (100, 362), (110, 362)])
sketch15.addConstraint([
    Sketcher.Constraint("Horizontal", 1),
    Sketcher.Constraint("Vertical", 2),
    Sketcher.Constraint("Equal", 1, 2),
    Sketcher.Constraint("DistanceX", 1, 1, 1, 2, Q("10 mm")),
    Sketcher.Constraint("DistanceY", -1, 1, 0, 2, Q("362.1737 mm")),
    Sketcher.Constraint("DistanceX", -1, 1, 0, 2, Q("99.617558 mm")),
])
sketch15.setExpression("Constraints[6]", "Params.sketch15_width")
pad12 = doc.addObject("PartDesign::Pad", "Pad011")
body.addObject(pad12)
pad12.Profile = sketch15
pad12.setExpression("Length", "Params.pad12_length")
pad12.Midplane = True

sketch16 = doc.addObject("Sketcher::SketchObject", "Sketch015")
body.addObject(sketch16)
sketch16.AttachmentSupport = (doc.YZ_Plane, [""])
sketch16.MapMode = "FlatFace"
sketch16.AttachmentOffset = App.Placement(V(0, 0, 200), App.Rotation())
sketch16.addGeometry([
    Part.Circle(V(160, 258.7, 0), V(0, 0, 1), 24),
    Part.Circle(V(150, 284.7, 0), V(0, 0, 1), 1.5),
    Part.Circle(V(150, 232.7, 0), V(0, 0, 1), 1.5),
], False)
sketch16.addConstraint([
    Sketcher.Constraint("Equal", 1, 2),
    Sketcher.Constraint("Vertical", 1, 3, 2, 3),
    Sketcher.Constraint("Diameter", 0, Q("48 mm")),
    Sketcher.Constraint("Diameter", 1, Q("3 mm")),
    Sketcher.Constraint("DistanceX", -1, 1, 0, 3, Q("160 mm")),
    Sketcher.Constraint("DistanceX", -1, 1, 1, 3, Q("150 mm")),
    Sketcher.Constraint("DistanceY", 0, 3, 1, 3, Q("26 mm")),
    Sketcher.Constraint("DistanceY", 2, 3, 0, 3, Q("26 mm")),
    Sketcher.Constraint("DistanceY", -1, 1, 0, 3, Q("258.6737 mm")),
])
sketch16.setExpression("Constraints[2]", "Params.sketch16_diameter")
sketch16.setExpression("Constraints[3]", "Params.sketch16_diameter2")
pocket4 = doc.addObject("PartDesign::Pocket", "Pocket003")
body.addObject(pocket4)
pocket4.Profile = sketch16
pocket4.setExpression("Length", "Params.pocket4_length")

sketch17 = doc.addObject("Sketcher::SketchObject", "Sketch016")
body.addObject(sketch17)
sketch17.AttachmentSupport = (doc.YZ_Plane, [""])
sketch17.MapMode = "FlatFace"
sketch17.AttachmentOffset = App.Placement(V(0, 0, -200), App.Rotation())
sketch17.addGeometry([
    Part.Circle(V(147.8, -180.6, 0), V(0, 0, 1), 2),
    Part.Circle(V(28.4, -180.6, 0), V(0, 0, 1), 2),
    Part.Circle(V(147.8, -8.9, 0), V(0, 0, 1), 2),
    Part.Circle(V(28.4, -8.9, 0), V(0, 0, 1), 2),
    Part.Circle(V(147.8, 162.8, 0), V(0, 0, 1), 2),
    Part.Circle(V(28.4, 162.8, 0), V(0, 0, 1), 2),
], False)
sketch17.addConstraint([
    Sketcher.Constraint("Equal", 0, 1),
    Sketcher.Constraint("Equal", 1, 2),
    Sketcher.Constraint("Equal", 2, 3),
    Sketcher.Constraint("Equal", 3, 4),
    Sketcher.Constraint("Equal", 4, 5),
    Sketcher.Constraint("Horizontal", 0, 3, 1, 3),
    Sketcher.Constraint("Horizontal", 2, 3, 3, 3),
    Sketcher.Constraint("Horizontal", 4, 3, 5, 3),
    Sketcher.Constraint("Vertical", 0, 3, 2, 3),
    Sketcher.Constraint("Vertical", 1, 3, 3, 3),
    Sketcher.Constraint("Vertical", 2, 3, 4, 3),
    Sketcher.Constraint("Vertical", 3, 3, 5, 3),
    Sketcher.Constraint("Diameter", 0, Q("4 mm")),
    Sketcher.Constraint("DistanceY", 0, 3, 2, 3, Q("171.7 mm")),
    Sketcher.Constraint("DistanceY", 2, 3, 4, 3, Q("171.7 mm")),
    Sketcher.Constraint("DistanceX", -1, 1, 0, 3, Q("147.77 mm")),
    Sketcher.Constraint("DistanceX", -1, 1, 1, 3, Q("28.39 mm")),
    Sketcher.Constraint("DistanceY", 0, 3, -1, 1, Q("180.6263 mm")),
])
sketch17.setExpression("Constraints[12]", "Params.sketch17_diameter")
pocket5 = doc.addObject("PartDesign::Pocket", "Pocket004")
body.addObject(pocket5)
pocket5.Profile = sketch17
pocket5.setExpression("Length", "Params.pocket5_length")
pocket5.Reversed = True

sketch18 = doc.addObject("Sketcher::SketchObject", "Sketch017")
body.addObject(sketch18)
sketch18.AttachmentSupport = (doc.XY_Plane, [""])
sketch18.MapMode = "FlatFace"
sketch18.AttachmentOffset = App.Placement(V(0, 0, -235.8263), App.Rotation())
add_polygon(sketch18, [(-170, 231.5), (-170, 219.5), (170, 219.5), (170, 231.5)])
sketch18.addGeometry(Part.Circle(V(-120.5, 240, 0), V(0, 0, 1), 1.6), False)
sketch18.addGeometry(Part.Circle(V(-149.5, 211, 0), V(0, 0, 1), 1.6), False)
sketch18.addGeometry(Part.Circle(V(-75.5, 240, 0), V(0, 0, 1), 1.6), False)
sketch18.addGeometry(Part.Circle(V(-104.5, 211, 0), V(0, 0, 1), 1.6), False)
sketch18.addGeometry(Part.Circle(V(-30.5, 240, 0), V(0, 0, 1), 1.6), False)
sketch18.addGeometry(Part.Circle(V(-59.5, 211, 0), V(0, 0, 1), 1.6), False)
sketch18.addGeometry(Part.Circle(V(14.5, 240, 0), V(0, 0, 1), 1.6), False)
sketch18.addGeometry(Part.Circle(V(-14.5, 211, 0), V(0, 0, 1), 1.6), False)
sketch18.addGeometry(Part.Circle(V(59.5, 240, 0), V(0, 0, 1), 1.6), False)
sketch18.addGeometry(Part.Circle(V(30.5, 211, 0), V(0, 0, 1), 1.6), False)
sketch18.addGeometry(Part.Circle(V(104.5, 240, 0), V(0, 0, 1), 1.6), False)
sketch18.addGeometry(Part.Circle(V(75.5, 211, 0), V(0, 0, 1), 1.6), False)
sketch18.addGeometry(Part.Circle(V(149.5, 240, 0), V(0, 0, 1), 1.6), False)
sketch18.addGeometry(Part.Circle(V(120.5, 211, 0), V(0, 0, 1), 1.6), False)
sketch18.addConstraint([
    Sketcher.Constraint("Vertical", 0),
    Sketcher.Constraint("Horizontal", 1),
    Sketcher.Constraint("Vertical", 2),
    Sketcher.Constraint("Horizontal", 3),
    Sketcher.Constraint("Equal", 4, 5),
    Sketcher.Constraint("Equal", 5, 6),
    Sketcher.Constraint("Equal", 6, 7),
    Sketcher.Constraint("Equal", 7, 8),
    Sketcher.Constraint("Equal", 8, 9),
    Sketcher.Constraint("Equal", 9, 10),
    Sketcher.Constraint("Equal", 10, 11),
    Sketcher.Constraint("Equal", 11, 12),
    Sketcher.Constraint("Equal", 12, 13),
    Sketcher.Constraint("Equal", 13, 14),
    Sketcher.Constraint("Equal", 14, 15),
    Sketcher.Constraint("Equal", 15, 16),
    Sketcher.Constraint("Equal", 16, 17),
    Sketcher.Constraint("Horizontal", 4, 3, 6, 3),
    Sketcher.Constraint("Horizontal", 5, 3, 7, 3),
    Sketcher.Constraint("Horizontal", 6, 3, 8, 3),
    Sketcher.Constraint("Horizontal", 7, 3, 9, 3),
    Sketcher.Constraint("Horizontal", 8, 3, 10, 3),
    Sketcher.Constraint("Horizontal", 9, 3, 11, 3),
    Sketcher.Constraint("Horizontal", 10, 3, 12, 3),
    Sketcher.Constraint("Horizontal", 11, 3, 13, 3),
    Sketcher.Constraint("Horizontal", 12, 3, 14, 3),
    Sketcher.Constraint("Horizontal", 13, 3, 15, 3),
    Sketcher.Constraint("Horizontal", 14, 3, 16, 3),
    Sketcher.Constraint("Horizontal", 15, 3, 17, 3),
    Sketcher.Constraint("Diameter", 4, Q("3.2 mm")),
    Sketcher.Constraint("DistanceX", 1, 1, 1, 2, Q("340 mm")),
    Sketcher.Constraint("DistanceY", 0, 2, 0, 1, Q("12 mm")),
    Sketcher.Constraint("DistanceY", -1, 1, 4, 3, Q("240 mm")),
    Sketcher.Constraint("DistanceY", -1, 1, 5, 3, Q("211 mm")),
    Sketcher.Constraint("DistanceX", 0, 2, -1, 1, Q("170 mm")),
    Sketcher.Constraint("DistanceX", 5, 3, 4, 3, Q("29 mm")),
    Sketcher.Constraint("DistanceX", 4, 3, 6, 3, Q("45 mm")),
    Sketcher.Constraint("DistanceX", 4, 3, 7, 3, Q("16 mm")),
    Sketcher.Constraint("DistanceX", 6, 3, 8, 3, Q("45 mm")),
    Sketcher.Constraint("DistanceX", 6, 3, 9, 3, Q("16 mm")),
    Sketcher.Constraint("DistanceX", 8, 3, 10, 3, Q("45 mm")),
    Sketcher.Constraint("DistanceX", 8, 3, 11, 3, Q("16 mm")),
    Sketcher.Constraint("DistanceX", 10, 3, 12, 3, Q("45 mm")),
    Sketcher.Constraint("DistanceX", 10, 3, 13, 3, Q("16 mm")),
    Sketcher.Constraint("DistanceX", 12, 3, 14, 3, Q("45 mm")),
    Sketcher.Constraint("DistanceX", 12, 3, 15, 3, Q("16 mm")),
    Sketcher.Constraint("DistanceX", 14, 3, 16, 3, Q("45 mm")),
    Sketcher.Constraint("DistanceX", 14, 3, 17, 3, Q("16 mm")),
    Sketcher.Constraint("DistanceX", 4, 3, -1, 1, Q("120.5 mm")),
    Sketcher.Constraint("DistanceY", -1, 1, 0, 2, Q("219.5 mm")),
])
sketch18.setExpression("Constraints[33]", "Params.sketch18_diameter")
sketch18.setExpression("Constraints[34]", "Params.sketch18_width")
sketch18.setExpression("Constraints[35]", "Params.sketch18_height")
pocket6 = doc.addObject("PartDesign::Pocket", "Pocket005")
body.addObject(pocket6)
pocket6.Profile = sketch18
pocket6.setExpression("Length", "Params.pocket6_length")

doc.recompute()
